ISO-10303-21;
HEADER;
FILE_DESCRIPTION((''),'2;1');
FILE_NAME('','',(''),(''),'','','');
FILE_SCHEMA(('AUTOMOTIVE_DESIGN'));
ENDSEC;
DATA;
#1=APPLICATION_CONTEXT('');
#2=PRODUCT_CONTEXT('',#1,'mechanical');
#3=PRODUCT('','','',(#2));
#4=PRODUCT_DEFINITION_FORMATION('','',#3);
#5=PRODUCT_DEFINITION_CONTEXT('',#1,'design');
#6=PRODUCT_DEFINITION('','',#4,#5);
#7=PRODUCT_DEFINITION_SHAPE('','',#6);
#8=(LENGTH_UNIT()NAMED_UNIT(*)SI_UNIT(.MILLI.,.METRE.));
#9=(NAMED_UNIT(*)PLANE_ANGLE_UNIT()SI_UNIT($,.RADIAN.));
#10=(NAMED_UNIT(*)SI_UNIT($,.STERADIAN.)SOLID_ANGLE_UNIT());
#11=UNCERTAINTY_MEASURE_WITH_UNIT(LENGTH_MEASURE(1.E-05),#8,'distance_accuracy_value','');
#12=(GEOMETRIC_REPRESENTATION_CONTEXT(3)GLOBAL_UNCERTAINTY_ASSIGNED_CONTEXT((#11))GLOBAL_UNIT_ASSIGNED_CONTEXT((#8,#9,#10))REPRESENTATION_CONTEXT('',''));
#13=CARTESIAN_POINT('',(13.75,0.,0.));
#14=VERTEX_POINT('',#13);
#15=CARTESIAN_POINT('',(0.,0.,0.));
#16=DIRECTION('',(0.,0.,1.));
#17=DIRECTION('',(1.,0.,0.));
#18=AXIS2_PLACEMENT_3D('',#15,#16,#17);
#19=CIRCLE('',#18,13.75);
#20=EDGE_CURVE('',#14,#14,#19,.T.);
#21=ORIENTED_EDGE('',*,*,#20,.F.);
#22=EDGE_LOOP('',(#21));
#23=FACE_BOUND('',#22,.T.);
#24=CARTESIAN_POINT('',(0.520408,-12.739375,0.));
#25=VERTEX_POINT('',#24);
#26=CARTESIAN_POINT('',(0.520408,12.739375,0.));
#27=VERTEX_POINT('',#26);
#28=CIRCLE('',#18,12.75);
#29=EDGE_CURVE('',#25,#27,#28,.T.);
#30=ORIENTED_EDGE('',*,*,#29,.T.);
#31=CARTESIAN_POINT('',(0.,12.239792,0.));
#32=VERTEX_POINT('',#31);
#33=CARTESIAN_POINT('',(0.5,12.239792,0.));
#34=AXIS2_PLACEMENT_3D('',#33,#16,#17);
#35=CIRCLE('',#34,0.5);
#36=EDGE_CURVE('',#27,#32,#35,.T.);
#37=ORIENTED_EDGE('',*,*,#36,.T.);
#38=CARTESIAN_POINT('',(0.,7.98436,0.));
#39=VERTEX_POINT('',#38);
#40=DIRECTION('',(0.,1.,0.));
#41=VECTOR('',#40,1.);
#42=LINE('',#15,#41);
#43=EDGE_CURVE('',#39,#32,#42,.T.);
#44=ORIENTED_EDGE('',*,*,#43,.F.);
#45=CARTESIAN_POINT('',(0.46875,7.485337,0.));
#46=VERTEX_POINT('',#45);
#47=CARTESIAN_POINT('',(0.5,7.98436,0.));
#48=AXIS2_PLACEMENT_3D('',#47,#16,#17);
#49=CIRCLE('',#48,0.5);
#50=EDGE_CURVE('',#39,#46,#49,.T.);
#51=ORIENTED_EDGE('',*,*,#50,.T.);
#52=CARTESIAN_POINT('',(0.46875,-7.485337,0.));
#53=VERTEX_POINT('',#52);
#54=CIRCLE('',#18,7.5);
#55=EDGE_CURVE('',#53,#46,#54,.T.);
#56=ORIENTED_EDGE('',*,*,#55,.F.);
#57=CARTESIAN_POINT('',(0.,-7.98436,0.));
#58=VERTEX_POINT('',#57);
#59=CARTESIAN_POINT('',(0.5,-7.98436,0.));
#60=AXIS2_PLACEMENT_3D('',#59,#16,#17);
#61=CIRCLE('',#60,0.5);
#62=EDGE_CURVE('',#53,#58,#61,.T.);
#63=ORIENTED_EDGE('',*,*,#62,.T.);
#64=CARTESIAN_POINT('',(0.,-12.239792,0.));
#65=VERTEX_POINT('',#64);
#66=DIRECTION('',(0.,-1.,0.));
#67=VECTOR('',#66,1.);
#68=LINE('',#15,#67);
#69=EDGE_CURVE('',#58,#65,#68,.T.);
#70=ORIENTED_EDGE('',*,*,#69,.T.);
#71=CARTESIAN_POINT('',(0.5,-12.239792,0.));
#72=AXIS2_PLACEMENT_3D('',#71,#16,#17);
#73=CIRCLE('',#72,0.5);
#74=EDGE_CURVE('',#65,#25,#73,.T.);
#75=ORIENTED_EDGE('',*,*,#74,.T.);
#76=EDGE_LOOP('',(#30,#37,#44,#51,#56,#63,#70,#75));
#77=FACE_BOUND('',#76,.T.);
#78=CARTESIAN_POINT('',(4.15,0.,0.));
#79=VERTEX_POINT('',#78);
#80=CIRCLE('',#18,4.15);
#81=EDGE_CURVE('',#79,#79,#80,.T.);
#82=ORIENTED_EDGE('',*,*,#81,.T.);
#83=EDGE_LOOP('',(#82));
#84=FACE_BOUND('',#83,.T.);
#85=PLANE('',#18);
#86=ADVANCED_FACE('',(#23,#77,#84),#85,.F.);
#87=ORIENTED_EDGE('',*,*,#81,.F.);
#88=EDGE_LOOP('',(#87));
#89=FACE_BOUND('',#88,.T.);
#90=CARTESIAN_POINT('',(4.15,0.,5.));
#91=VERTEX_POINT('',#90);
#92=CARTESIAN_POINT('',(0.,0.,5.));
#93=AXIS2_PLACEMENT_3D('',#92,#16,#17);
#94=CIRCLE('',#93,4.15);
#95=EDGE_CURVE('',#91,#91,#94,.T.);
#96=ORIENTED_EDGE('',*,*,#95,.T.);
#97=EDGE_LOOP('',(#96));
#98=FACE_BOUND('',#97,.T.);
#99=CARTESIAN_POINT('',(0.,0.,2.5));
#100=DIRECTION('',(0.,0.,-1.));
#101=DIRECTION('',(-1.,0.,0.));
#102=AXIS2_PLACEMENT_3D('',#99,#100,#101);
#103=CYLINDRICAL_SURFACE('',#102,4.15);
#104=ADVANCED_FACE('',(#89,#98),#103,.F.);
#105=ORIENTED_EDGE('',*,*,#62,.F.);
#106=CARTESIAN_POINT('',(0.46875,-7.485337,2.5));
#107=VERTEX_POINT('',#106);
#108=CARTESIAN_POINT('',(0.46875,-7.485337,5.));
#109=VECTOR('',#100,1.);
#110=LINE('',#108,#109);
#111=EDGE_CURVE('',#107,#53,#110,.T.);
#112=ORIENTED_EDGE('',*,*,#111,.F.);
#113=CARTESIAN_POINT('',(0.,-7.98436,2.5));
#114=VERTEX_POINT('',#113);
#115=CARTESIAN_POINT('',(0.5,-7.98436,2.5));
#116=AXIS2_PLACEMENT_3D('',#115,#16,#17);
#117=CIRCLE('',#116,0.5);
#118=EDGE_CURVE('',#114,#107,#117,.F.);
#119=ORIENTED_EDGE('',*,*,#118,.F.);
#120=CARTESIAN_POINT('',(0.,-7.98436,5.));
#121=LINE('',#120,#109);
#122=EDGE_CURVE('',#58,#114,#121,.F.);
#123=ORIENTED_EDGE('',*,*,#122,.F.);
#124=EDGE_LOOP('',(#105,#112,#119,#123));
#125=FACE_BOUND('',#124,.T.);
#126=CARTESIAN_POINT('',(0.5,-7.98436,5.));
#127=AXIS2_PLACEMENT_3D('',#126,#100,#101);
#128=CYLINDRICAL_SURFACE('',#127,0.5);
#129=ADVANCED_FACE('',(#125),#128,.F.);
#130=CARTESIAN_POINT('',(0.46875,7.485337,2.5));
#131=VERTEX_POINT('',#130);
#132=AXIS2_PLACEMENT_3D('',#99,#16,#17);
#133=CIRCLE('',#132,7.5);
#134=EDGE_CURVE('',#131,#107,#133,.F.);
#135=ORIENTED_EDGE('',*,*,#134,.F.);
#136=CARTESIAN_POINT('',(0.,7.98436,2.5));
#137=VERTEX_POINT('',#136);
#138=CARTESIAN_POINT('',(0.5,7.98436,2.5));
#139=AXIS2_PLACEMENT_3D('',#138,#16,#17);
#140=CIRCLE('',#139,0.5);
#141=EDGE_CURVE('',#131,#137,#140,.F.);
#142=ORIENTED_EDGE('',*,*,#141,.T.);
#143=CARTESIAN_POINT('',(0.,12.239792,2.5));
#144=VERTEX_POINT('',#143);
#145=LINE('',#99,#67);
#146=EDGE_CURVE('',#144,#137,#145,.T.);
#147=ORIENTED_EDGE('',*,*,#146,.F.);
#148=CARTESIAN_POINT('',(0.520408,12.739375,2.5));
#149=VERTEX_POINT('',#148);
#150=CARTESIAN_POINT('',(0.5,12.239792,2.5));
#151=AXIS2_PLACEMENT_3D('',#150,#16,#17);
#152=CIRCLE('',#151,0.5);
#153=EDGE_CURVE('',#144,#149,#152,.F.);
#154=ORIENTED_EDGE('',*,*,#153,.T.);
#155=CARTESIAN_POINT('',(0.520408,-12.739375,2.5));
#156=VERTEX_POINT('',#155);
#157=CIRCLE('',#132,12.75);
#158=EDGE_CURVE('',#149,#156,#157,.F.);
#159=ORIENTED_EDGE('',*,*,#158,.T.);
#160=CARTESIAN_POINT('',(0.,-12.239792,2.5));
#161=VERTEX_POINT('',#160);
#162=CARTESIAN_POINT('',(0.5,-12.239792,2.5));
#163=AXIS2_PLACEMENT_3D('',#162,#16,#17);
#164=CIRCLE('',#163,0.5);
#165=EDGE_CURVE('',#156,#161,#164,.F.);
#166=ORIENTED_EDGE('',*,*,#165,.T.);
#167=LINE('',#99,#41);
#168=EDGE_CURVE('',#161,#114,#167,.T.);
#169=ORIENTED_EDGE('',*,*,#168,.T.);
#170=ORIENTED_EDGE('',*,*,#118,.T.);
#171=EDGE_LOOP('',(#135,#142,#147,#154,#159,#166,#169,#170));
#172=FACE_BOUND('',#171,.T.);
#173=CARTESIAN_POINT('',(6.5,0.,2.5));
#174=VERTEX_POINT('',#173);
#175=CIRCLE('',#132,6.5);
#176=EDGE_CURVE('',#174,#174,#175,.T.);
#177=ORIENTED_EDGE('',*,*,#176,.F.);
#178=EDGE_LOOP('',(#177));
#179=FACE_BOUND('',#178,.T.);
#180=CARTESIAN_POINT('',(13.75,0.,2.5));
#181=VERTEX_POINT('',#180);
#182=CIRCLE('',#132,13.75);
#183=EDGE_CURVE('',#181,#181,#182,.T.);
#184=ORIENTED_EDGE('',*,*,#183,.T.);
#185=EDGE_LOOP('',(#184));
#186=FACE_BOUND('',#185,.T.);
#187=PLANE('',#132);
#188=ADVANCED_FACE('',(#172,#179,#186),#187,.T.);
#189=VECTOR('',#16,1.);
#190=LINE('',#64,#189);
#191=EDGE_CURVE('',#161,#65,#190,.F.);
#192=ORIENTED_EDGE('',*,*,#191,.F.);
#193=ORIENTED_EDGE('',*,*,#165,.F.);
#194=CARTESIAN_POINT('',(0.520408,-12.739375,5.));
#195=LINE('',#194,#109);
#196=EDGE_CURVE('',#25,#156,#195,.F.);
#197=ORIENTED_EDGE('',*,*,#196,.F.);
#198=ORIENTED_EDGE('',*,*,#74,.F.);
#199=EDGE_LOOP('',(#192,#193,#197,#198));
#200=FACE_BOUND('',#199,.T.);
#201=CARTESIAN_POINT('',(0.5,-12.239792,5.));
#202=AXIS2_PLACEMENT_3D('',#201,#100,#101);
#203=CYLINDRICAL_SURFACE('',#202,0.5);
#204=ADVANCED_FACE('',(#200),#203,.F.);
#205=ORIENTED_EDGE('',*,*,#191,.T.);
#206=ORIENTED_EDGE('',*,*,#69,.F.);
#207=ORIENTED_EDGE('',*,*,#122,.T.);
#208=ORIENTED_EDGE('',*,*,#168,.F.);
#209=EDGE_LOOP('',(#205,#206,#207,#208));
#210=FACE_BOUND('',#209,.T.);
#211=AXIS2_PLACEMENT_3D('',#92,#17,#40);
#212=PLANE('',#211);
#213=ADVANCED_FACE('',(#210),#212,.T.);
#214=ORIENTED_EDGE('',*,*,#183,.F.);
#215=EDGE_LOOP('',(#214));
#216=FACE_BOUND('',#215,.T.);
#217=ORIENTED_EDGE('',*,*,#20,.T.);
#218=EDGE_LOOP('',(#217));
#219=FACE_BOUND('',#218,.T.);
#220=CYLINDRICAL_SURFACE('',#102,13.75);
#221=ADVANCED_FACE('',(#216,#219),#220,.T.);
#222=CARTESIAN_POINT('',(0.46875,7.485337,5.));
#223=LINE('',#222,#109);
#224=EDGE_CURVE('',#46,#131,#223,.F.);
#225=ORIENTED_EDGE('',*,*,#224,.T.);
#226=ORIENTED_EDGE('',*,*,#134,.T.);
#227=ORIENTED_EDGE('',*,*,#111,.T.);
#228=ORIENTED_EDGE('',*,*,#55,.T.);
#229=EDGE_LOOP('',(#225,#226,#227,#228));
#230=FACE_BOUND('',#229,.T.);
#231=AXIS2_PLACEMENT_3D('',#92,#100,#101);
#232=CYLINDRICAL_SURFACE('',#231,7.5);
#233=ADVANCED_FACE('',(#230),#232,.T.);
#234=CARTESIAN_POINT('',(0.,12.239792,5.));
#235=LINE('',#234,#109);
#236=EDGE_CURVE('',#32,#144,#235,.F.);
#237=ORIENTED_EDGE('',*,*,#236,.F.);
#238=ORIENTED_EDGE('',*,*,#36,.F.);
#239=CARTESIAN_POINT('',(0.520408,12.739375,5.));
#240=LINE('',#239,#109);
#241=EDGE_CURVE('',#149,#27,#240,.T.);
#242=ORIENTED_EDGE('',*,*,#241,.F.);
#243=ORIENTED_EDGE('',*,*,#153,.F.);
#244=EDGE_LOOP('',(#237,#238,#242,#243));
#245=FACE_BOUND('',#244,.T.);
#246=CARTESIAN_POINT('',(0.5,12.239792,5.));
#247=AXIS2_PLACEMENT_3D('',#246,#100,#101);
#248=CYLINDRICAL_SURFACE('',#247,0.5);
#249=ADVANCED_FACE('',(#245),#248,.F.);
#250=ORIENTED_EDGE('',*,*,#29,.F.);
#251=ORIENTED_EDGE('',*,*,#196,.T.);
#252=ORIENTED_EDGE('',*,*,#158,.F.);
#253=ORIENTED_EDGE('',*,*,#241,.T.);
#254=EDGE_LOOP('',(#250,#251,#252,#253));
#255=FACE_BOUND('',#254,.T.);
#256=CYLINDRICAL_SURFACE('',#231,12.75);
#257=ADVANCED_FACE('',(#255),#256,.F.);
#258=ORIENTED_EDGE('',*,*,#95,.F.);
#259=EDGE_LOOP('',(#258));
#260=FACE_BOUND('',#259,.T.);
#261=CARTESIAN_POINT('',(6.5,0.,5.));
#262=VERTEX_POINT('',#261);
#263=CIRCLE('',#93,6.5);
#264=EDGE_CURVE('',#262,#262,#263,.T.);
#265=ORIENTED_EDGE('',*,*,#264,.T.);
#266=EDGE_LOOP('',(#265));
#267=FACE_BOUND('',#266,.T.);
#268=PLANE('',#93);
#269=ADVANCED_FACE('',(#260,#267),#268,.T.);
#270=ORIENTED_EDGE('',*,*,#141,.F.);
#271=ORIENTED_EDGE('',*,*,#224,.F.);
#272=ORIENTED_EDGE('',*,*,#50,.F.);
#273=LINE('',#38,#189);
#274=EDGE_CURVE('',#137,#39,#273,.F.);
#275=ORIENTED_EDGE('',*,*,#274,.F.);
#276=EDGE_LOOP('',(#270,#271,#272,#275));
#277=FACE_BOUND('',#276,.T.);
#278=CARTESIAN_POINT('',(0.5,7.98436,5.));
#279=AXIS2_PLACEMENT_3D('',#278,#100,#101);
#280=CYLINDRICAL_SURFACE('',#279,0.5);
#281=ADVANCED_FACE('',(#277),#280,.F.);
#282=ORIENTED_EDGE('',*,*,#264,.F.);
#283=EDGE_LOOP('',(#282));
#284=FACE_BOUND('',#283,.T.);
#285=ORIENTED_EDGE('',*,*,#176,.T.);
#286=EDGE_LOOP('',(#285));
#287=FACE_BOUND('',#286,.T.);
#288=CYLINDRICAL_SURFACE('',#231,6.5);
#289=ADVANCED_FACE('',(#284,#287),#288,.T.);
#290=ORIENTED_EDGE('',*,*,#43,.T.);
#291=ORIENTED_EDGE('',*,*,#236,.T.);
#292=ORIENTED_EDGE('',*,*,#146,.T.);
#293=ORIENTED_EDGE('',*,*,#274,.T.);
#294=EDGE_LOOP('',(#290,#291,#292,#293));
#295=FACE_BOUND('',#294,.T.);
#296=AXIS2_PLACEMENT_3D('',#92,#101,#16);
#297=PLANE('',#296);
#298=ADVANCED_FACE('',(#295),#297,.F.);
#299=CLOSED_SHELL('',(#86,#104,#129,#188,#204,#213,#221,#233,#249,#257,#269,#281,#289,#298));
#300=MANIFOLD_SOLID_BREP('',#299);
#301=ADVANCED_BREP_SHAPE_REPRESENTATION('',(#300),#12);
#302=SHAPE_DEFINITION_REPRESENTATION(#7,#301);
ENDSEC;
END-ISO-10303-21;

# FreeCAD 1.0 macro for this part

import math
import FreeCAD as App
import Part
import Sketcher
from FreeCAD import Vector
Q = App.Units.Quantity


def edges_at(feature, points):
    """Names of the edges that pass closest to the given points."""
    edges = feature.Shape.Edges
    near = lambda p: min(range(len(edges)), key=lambda i: edges[i].distToShape(Part.Vertex(*p))[0])
    return sorted({f"Edge{near(p) + 1}" for p in points})

doc = App.newDocument("Part")
body = doc.addObject("PartDesign::Body", "Body")

sketch1 = body.newObject("Sketcher::SketchObject", "Sketch")
sketch1.AttachmentSupport = (doc.getObject("XY_Plane"), [""])
sketch1.MapMode = "FlatFace"
sketch1.addGeometry([
    Part.Circle(Vector(0, 0, 0), Vector(0, 0, 1), 13.8),
    Part.Circle(Vector(0, 0, 0), Vector(0, 0, 1), 4.2),
], False)
sketch1.addConstraint([
    Sketcher.Constraint("Coincident", 0, 3, -1, 1),
    Sketcher.Constraint("Coincident", 1, 3, -1, 1),
    Sketcher.Constraint("Diameter", 0, Q("27.5 mm")),
    Sketcher.Constraint("Diameter", 1, Q("8.3 mm")),
])
pad1 = body.newObject("PartDesign::Pad", "Pad")
pad1.Profile = sketch1
pad1.Length = 2.5

sketch2 = body.newObject("Sketcher::SketchObject", "Sketch001")
sketch2.AttachmentSupport = (doc.getObject("XY_Plane"), [""])
sketch2.MapMode = "FlatFace"
sketch2.AttachmentOffset = App.Placement(Vector(0, 0, 2.5), App.Rotation())
sketch2.addGeometry([
    Part.Circle(Vector(0, 0, 0), Vector(0, 0, 1), 6.5),
    Part.Circle(Vector(0, 0, 0), Vector(0, 0, 1), 4.2),
], False)
sketch2.addConstraint([
    Sketcher.Constraint("Coincident", 0, 3, -1, 1),
    Sketcher.Constraint("Coincident", 1, 3, -1, 1),
    Sketcher.Constraint("Diameter", 0, Q("13 mm")),
    Sketcher.Constraint("Diameter", 1, Q("8.3 mm")),
])
pad2 = body.newObject("PartDesign::Pad", "Pad001")
pad2.Profile = sketch2
pad2.Length = 2.5

sketch3 = body.newObject("Sketcher::SketchObject", "Sketch002")
sketch3.AttachmentSupport = (doc.getObject("XY_Plane"), [""])
sketch3.MapMode = "FlatFace"
sketch3.addGeometry([
    Part.LineSegment(Vector(0, 13, 0), Vector(0, 8, 0)),
    Part.ArcOfCircle(Part.Circle(Vector(0, 0, 0), Vector(0, 0, 1), 8), math.radians(0), math.radians(90)),
    Part.ArcOfCircle(Part.Circle(Vector(0, 0, 0), Vector(0, 0, 1), 8), math.radians(-90), math.radians(0)),
    Part.LineSegment(Vector(0, -8, 0), Vector(0, -13, 0)),
    Part.ArcOfCircle(Part.Circle(Vector(0, 0, 0), Vector(0, 0, 1), 13), math.radians(-90), math.radians(0)),
    Part.ArcOfCircle(Part.Circle(Vector(0, 0, 0), Vector(0, 0, 1), 13), math.radians(0), math.radians(90)),
], False)
sketch3.addConstraint([
    Sketcher.Constraint("Coincident", 0, 2, 1, 2),
    Sketcher.Constraint("Tangent", 1, 1, 2, 2),
    Sketcher.Constraint("Coincident", 2, 1, 3, 1),
    Sketcher.Constraint("Coincident", 3, 2, 4, 1),
    Sketcher.Constraint("Tangent", 4, 2, 5, 1),
    Sketcher.Constraint("Coincident", 5, 2, 0, 1),
    Sketcher.Constraint("Vertical", 0),
    Sketcher.Constraint("Vertical", 3),
    Sketcher.Constraint("Coincident", 1, 3, -1, 1),
    Sketcher.Constraint("Coincident", 4, 3, -1, 1),
    Sketcher.Constraint("Equal", 1, 2),
    Sketcher.Constraint("Equal", 4, 5),
    Sketcher.Constraint("PointOnObject", 0, 2, -2),
    Sketcher.Constraint("PointOnObject", 1, 1, -1),
    Sketcher.Constraint("PointOnObject", 2, 1, -2),
    Sketcher.Constraint("PointOnObject", 4, 2, -1),
    Sketcher.Constraint("Radius", 1, Q("7.5 mm")),
    Sketcher.Constraint("Radius", 4, Q("12.75 mm")),
])
pocket1 = body.newObject("PartDesign::Pocket", "Pocket")
pocket1.Profile = sketch3
pocket1.Type = "ThroughAll"
pocket1.Reversed = True
doc.recompute()

fillet = body.newObject("PartDesign::Fillet", "Fillet")
fillet.Base = (pocket1, edges_at(pocket1, [
    (0, 7.5, 1.25),
    (0, -7.5, 1.25),
    (0, -12.75, 1.25),
    (0, 12.75, 1.25),
]))
fillet.Radius = 0.5

doc.recompute()
